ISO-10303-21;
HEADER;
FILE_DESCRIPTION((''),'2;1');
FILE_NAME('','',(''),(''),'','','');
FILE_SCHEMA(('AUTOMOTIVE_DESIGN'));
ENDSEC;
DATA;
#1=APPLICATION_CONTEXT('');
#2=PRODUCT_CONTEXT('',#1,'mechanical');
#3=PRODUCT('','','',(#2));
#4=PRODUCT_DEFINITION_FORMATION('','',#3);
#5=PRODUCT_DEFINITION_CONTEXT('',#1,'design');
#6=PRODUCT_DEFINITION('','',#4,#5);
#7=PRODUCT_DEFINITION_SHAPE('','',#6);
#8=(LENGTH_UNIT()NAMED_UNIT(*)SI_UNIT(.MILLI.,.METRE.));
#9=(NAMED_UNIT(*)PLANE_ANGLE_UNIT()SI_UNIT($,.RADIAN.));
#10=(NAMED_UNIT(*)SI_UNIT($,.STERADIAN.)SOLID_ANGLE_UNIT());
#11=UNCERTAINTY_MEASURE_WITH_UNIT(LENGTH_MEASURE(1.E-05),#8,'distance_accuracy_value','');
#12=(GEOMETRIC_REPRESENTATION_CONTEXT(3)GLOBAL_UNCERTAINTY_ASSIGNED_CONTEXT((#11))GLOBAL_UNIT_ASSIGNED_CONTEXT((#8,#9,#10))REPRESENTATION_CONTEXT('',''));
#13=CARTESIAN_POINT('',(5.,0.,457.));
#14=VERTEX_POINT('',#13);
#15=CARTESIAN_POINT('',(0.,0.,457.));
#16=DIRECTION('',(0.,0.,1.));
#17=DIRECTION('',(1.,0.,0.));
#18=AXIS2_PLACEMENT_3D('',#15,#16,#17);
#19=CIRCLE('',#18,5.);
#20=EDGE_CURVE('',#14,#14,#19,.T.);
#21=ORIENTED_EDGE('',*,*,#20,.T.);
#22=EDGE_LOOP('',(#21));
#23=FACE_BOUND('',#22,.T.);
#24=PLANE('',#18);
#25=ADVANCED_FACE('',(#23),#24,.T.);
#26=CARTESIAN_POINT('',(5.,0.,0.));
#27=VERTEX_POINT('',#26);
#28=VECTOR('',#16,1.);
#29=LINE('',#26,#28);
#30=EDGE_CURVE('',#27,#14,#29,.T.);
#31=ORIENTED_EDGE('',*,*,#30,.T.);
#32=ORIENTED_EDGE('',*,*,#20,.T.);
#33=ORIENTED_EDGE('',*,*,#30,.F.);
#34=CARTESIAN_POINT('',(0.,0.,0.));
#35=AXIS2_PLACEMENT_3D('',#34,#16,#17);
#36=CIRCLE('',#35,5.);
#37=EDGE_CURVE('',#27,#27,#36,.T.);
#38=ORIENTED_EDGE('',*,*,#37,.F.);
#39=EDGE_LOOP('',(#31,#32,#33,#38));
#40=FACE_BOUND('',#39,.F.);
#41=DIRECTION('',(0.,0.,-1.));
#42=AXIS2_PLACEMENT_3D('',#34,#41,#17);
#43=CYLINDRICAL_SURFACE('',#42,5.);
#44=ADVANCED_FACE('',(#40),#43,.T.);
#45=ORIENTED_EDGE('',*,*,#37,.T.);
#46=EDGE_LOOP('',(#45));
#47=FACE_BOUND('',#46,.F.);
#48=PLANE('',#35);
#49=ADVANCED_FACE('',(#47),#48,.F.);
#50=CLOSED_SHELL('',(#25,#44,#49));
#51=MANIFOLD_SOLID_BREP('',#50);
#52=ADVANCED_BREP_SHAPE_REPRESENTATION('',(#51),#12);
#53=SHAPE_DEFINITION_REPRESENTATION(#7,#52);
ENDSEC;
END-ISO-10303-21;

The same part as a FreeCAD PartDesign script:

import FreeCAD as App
import Part
import Sketcher
from FreeCAD import Vector
Q = App.Units.Quantity

doc = App.newDocument("Part")
body = doc.addObject("PartDesign::Body", "Body")

sketch1 = body.newObject("Sketcher::SketchObject", "Sketch")
sketch1.AttachmentSupport = (doc.getObject("XY_Plane"), [""])
sketch1.MapMode = "FlatFace"
sketch1.addGeometry(Part.Circle(Vector(0, 0, 0), Vector(0, 0, 1), 5), False)
sketch1.addConstraint(Sketcher.Constraint("Coincident", 0, 3, -1, 1))
sketch1.addConstraint(Sketcher.Constraint("Diameter", 0, Q("10 mm")))
pad1 = body.newObject("PartDesign::Pad", "Pad")
pad1.Profile = sketch1
pad1.Length = 457

doc.recompute()
